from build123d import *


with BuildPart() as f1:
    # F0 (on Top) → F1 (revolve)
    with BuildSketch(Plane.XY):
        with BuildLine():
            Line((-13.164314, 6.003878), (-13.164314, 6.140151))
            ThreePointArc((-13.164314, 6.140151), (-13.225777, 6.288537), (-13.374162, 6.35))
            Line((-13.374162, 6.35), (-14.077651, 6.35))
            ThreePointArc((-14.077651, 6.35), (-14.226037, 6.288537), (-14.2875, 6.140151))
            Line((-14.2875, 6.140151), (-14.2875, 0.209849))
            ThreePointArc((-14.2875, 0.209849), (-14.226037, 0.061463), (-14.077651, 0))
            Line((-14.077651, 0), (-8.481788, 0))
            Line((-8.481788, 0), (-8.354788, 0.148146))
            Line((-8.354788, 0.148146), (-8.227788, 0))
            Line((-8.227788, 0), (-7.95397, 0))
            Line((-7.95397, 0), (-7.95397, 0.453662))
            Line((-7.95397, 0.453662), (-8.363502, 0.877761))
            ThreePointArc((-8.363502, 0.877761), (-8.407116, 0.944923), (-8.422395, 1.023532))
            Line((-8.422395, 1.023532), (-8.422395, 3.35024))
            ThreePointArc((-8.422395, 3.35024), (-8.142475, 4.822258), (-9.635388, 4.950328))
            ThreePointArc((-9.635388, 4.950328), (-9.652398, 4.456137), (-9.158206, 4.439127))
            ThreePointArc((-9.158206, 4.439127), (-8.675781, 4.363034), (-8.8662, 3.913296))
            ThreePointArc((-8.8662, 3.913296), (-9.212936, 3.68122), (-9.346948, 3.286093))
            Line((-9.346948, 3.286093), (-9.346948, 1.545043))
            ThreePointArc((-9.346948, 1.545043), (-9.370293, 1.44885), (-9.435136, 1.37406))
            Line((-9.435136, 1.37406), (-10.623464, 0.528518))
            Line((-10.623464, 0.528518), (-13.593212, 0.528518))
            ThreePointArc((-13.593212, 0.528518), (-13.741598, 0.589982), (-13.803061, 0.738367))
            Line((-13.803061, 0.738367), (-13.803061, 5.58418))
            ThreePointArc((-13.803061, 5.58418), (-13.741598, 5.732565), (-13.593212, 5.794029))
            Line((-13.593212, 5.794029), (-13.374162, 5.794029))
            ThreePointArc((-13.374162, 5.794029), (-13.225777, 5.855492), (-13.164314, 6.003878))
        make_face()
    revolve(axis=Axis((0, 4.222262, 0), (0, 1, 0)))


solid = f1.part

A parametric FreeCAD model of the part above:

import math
import FreeCAD as App
import Part
import Sketcher
Q = App.Units.Quantity

doc = App.newDocument("Part")
params = doc.addObject("Spreadsheet::Sheet", "Params")
for row, (alias, value) in enumerate([
    ("revolution_angle", "360 deg"),
], start=1):
    params.set(f"A{row}", alias)
    params.set(f"B{row}", "=" + value)
    params.setAlias(f"B{row}", alias)

body = doc.addObject("PartDesign::Body", "Body")

sketch1 = body.newObject("Sketcher::SketchObject", "Sketch")
sketch1.AttachmentSupport = (doc.getObject("XY_Plane"), [""])
sketch1.MapMode = "FlatFace"
sketch1.addGeometry([
    Part.LineSegment(App.Vector(-13.16, 6, 0), App.Vector(-13.16, 6.14, 0)),
    Part.ArcOfCircle(Part.Circle(App.Vector(-13.37, 6.14, 0), App.Vector(0, 0, 1), 0.21), math.radians(0), math.radians(90)),
    Part.LineSegment(App.Vector(-13.37, 6.35, 0), App.Vector(-14.08, 6.35, 0)),
    Part.ArcOfCircle(Part.Circle(App.Vector(-14.08, 6.14, 0), App.Vector(0, 0, 1), 0.21), math.radians(90), math.radians(180)),
    Part.LineSegment(App.Vector(-14.29, 6.14, 0), App.Vector(-14.29, 0.21, 0)),
    Part.ArcOfCircle(Part.Circle(App.Vector(-14.08, 0.21, 0), App.Vector(0, 0, 1), 0.21), math.radians(180), math.radians(270)),
    Part.LineSegment(App.Vector(-14.08, 0, 0), App.Vector(-8.48, 0, 0)),
    Part.LineSegment(App.Vector(-8.48, 0, 0), App.Vector(-8.35, 0.15, 0)),
    Part.LineSegment(App.Vector(-8.35, 0.15, 0), App.Vector(-8.23, 0, 0)),
    Part.LineSegment(App.Vector(-8.23, 0, 0), App.Vector(-7.95, 0, 0)),
    Part.LineSegment(App.Vector(-7.95, 0, 0), App.Vector(-7.95, 0.45, 0)),
    Part.LineSegment(App.Vector(-7.95, 0.45, 0), App.Vector(-8.36, 0.88, 0)),
    Part.ArcOfCircle(Part.Circle(App.Vector(-8.21, 1.02, 0), App.Vector(0, 0, 1), 0.21), math.radians(180), math.radians(224)),
    Part.LineSegment(App.Vector(-8.42, 1.02, 0), App.Vector(-8.42, 3.35, 0)),
    Part.ArcOfCircle(Part.Circle(App.Vector(-8.95, 4.21, 0), App.Vector(0, 0, 1), 1.01), math.radians(-59), math.radians(133)),
    Part.ArcOfCircle(Part.Circle(App.Vector(-9.4, 4.69, 0), App.Vector(0, 0, 1), 0.35), math.radians(133), math.radians(313)),
    Part.ArcOfCircle(Part.Circle(App.Vector(-8.95, 4.21, 0), App.Vector(0, 0, 1), 0.31), math.radians(-75), math.radians(133)),
    Part.ArcOfCircle(Part.Circle(App.Vector(-8.7, 3.29, 0), App.Vector(0, 0, 1), 0.65), math.radians(105), math.radians(180)),
    Part.LineSegment(App.Vector(-9.35, 3.29, 0), App.Vector(-9.35, 1.55, 0)),
    Part.ArcOfCircle(Part.Circle(App.Vector(-9.56, 1.55, 0), App.Vector(0, 0, 1), 0.21), math.radians(-55), math.radians(0)),
    Part.LineSegment(App.Vector(-9.44, 1.37, 0), App.Vector(-10.62, 0.53, 0)),
    Part.LineSegment(App.Vector(-10.62, 0.53, 0), App.Vector(-13.59, 0.53, 0)),
    Part.ArcOfCircle(Part.Circle(App.Vector(-13.59, 0.74, 0), App.Vector(0, 0, 1), 0.21), math.radians(-180), math.radians(-90)),
    Part.LineSegment(App.Vector(-13.8, 0.74, 0), App.Vector(-13.8, 5.58, 0)),
    Part.ArcOfCircle(Part.Circle(App.Vector(-13.59, 5.58, 0), App.Vector(0, 0, 1), 0.21), math.radians(90), math.radians(180)),
    Part.LineSegment(App.Vector(-13.59, 5.79, 0), App.Vector(-13.37, 5.79, 0)),
    Part.ArcOfCircle(Part.Circle(App.Vector(-13.37, 6, 0), App.Vector(0, 0, 1), 0.21), math.radians(-90), math.radians(0)),
], False)
sketch1.addConstraint([
    Sketcher.Constraint("Coincident", 0, 2, 1, 1),
    Sketcher.Constraint("Tangent", 1, 2, 2, 1),
    Sketcher.Constraint("Coincident", 2, 2, 3, 1),
    Sketcher.Constraint("Coincident", 3, 2, 4, 1),
    Sketcher.Constraint("Coincident", 4, 2, 5, 1),
    Sketcher.Constraint("Coincident", 5, 2, 6, 1),
    Sketcher.Constraint("Coincident", 6, 2, 7, 1),
    Sketcher.Constraint("Coincident", 7, 2, 8, 1),
    Sketcher.Constraint("Coincident", 8, 2, 9, 1),
    Sketcher.Constraint("Coincident", 9, 2, 10, 1),
    Sketcher.Constraint("Coincident", 10, 2, 11, 1),
    Sketcher.Constraint("Coincident", 11, 2, 12, 2),
    Sketcher.Constraint("Coincident", 12, 1, 13, 1),
    Sketcher.Constraint("Coincident", 13, 2, 14, 1),
    Sketcher.Constraint("Tangent", 14, 2, 15, 1),
    Sketcher.Constraint("Tangent", 15, 2, 16, 2),
    Sketcher.Constraint("Tangent", 16, 1, 17, 1),
    Sketcher.Constraint("Tangent", 17, 2, 18, 1),
    Sketcher.Constraint("Coincident", 18, 2, 19, 2),
    Sketcher.Constraint("Coincident", 19, 1, 20, 1),
    Sketcher.Constraint("Coincident", 20, 2, 21, 1),
    Sketcher.Constraint("Coincident", 21, 2, 22, 2),
    Sketcher.Constraint("Coincident", 22, 1, 23, 1),
    Sketcher.Constraint("Coincident", 23, 2, 24, 2),
    Sketcher.Constraint("Coincident", 24, 1, 25, 1),
    Sketcher.Constraint("Tangent", 25, 2, 26, 1),
    Sketcher.Constraint("Coincident", 26, 2, 0, 1),
    Sketcher.Constraint("Vertical", 0),
    Sketcher.Constraint("Horizontal", 2),
    Sketcher.Constraint("Vertical", 4),
    Sketcher.Constraint("Horizontal", 6),
    Sketcher.Constraint("Horizontal", 9),
    Sketcher.Constraint("Vertical", 10),
    Sketcher.Constraint("Vertical", 13),
    Sketcher.Constraint("Vertical", 18),
    Sketcher.Constraint("Horizontal", 21),
    Sketcher.Constraint("Vertical", 23),
    Sketcher.Constraint("Horizontal", 25),
    Sketcher.Constraint("Coincident", 16, 3, 14, 3),
    Sketcher.Constraint("Equal", 1, 3),
    Sketcher.Constraint("Equal", 3, 5),
    Sketcher.Constraint("Equal", 5, 12),
    Sketcher.Constraint("Equal", 12, 19),
    Sketcher.Constraint("Equal", 5, 22),
    Sketcher.Constraint("Equal", 22, 24),
    Sketcher.Constraint("Equal", 24, 26),
    Sketcher.Constraint("PointOnObject", 5, 2, -1),
    Sketcher.Constraint("PointOnObject", 8, 2, -1),
    Sketcher.Constraint("Horizontal", 3, 3, 0, 2),
    Sketcher.Constraint("Horizontal", 0, 2, 3, 2),
    Sketcher.Constraint("Horizontal", 5, 3, 4, 2),
    Sketcher.Constraint("Horizontal", 24, 3, 23, 2),
    Sketcher.Constraint("Vertical", 5, 3, 2, 2),
    Sketcher.Constraint("Vertical", 2, 2, 5, 2),
    Sketcher.Constraint("Vertical", 24, 3, 21, 2),
    Sketcher.Constraint("Vertical", 21, 2, 24, 1),
    Sketcher.Constraint("Equal", 7, 8),
    Sketcher.Constraint("DistanceY", -1, 1, 1, 2, Q("6.35 mm")),
    Sketcher.Constraint("Radius", 16, Q("0.30992 mm")),
    Sketcher.Constraint("Radius", 17, Q("0.649511 mm")),
    Sketcher.Constraint("Radius", 22, Q("0.20985 mm")),
    Sketcher.Constraint("Radius", 14, Q("1.009227 mm")),
    Sketcher.Constraint("DistanceX", 6, 2, 7, 2, Q("0.127 mm")),
    Sketcher.Constraint("DistanceX", 2, 2, 2, 1, Q("0.703489 mm")),
    Sketcher.Constraint("DistanceX", 9, 1, 9, 2, Q("0.273818 mm")),
    Sketcher.Constraint("DistanceX", 25, 1, 25, 2, Q("0.21905 mm")),
    Sketcher.Constraint("DistanceY", 13, 1, 13, 2, Q("2.326708 mm")),
    Sketcher.Constraint("DistanceY", 18, 2, 18, 1, Q("1.74105 mm")),
    Sketcher.Constraint("DistanceX", 3, 2, -1, 1, Q("14.2875 mm")),
    Sketcher.Constraint("DistanceX", 16, 1, -1, 1, Q("8.8662 mm")),
    Sketcher.Constraint("DistanceY", 10, 2, 11, 2, Q("0.424099 mm")),
    Sketcher.Constraint("DistanceY", 19, 3, 13, 2, Q("1.805199 mm")),
    Sketcher.Constraint("DistanceY", 15, 3, 14, 2, Q("0.255601 mm")),
    Sketcher.Constraint("DistanceX", 18, 2, 12, 3, Q("1.134399 mm")),
    Sketcher.Constraint("DistanceY", 11, 2, 19, 1, Q("0.496299 mm")),
    Sketcher.Constraint("Distance", 7, Q("0.195131 mm")),
    Sketcher.Constraint("DistanceX", 6, 1, 6, 2, Q("5.595863 mm")),
    Sketcher.Constraint("DistanceX", 21, 2, 21, 1, Q("2.969748 mm")),
    Sketcher.Constraint("DistanceY", 0, 1, 0, 2, Q("0.136273 mm")),
    Sketcher.Constraint("DistanceY", 10, 1, 10, 2, Q("0.453662 mm")),
    Sketcher.Constraint("DistanceY", 23, 1, 23, 2, Q("4.845813 mm")),
    Sketcher.Constraint("DistanceX", 12, 3, -1, 1, Q("8.212549 mm")),
    Sketcher.Constraint("DistanceY", -1, 1, 12, 3, Q("1.02353 mm")),
    Sketcher.Constraint("DistanceY", -1, 1, 14, 3, Q("4.212571 mm")),
    Sketcher.Constraint("DistanceY", -1, 1, 24, 3, Q("5.584179 mm")),
    Sketcher.Constraint("DistanceY", -1, 1, 20, 2, Q("0.528518 mm")),
])
revolution = body.newObject("PartDesign::Revolution", "Revolution")
revolution.Profile = sketch1
revolution.ReferenceAxis = (sketch1, ["V_Axis"])
revolution.setExpression("Angle", "Params.revolution_angle")

doc.recompute()
